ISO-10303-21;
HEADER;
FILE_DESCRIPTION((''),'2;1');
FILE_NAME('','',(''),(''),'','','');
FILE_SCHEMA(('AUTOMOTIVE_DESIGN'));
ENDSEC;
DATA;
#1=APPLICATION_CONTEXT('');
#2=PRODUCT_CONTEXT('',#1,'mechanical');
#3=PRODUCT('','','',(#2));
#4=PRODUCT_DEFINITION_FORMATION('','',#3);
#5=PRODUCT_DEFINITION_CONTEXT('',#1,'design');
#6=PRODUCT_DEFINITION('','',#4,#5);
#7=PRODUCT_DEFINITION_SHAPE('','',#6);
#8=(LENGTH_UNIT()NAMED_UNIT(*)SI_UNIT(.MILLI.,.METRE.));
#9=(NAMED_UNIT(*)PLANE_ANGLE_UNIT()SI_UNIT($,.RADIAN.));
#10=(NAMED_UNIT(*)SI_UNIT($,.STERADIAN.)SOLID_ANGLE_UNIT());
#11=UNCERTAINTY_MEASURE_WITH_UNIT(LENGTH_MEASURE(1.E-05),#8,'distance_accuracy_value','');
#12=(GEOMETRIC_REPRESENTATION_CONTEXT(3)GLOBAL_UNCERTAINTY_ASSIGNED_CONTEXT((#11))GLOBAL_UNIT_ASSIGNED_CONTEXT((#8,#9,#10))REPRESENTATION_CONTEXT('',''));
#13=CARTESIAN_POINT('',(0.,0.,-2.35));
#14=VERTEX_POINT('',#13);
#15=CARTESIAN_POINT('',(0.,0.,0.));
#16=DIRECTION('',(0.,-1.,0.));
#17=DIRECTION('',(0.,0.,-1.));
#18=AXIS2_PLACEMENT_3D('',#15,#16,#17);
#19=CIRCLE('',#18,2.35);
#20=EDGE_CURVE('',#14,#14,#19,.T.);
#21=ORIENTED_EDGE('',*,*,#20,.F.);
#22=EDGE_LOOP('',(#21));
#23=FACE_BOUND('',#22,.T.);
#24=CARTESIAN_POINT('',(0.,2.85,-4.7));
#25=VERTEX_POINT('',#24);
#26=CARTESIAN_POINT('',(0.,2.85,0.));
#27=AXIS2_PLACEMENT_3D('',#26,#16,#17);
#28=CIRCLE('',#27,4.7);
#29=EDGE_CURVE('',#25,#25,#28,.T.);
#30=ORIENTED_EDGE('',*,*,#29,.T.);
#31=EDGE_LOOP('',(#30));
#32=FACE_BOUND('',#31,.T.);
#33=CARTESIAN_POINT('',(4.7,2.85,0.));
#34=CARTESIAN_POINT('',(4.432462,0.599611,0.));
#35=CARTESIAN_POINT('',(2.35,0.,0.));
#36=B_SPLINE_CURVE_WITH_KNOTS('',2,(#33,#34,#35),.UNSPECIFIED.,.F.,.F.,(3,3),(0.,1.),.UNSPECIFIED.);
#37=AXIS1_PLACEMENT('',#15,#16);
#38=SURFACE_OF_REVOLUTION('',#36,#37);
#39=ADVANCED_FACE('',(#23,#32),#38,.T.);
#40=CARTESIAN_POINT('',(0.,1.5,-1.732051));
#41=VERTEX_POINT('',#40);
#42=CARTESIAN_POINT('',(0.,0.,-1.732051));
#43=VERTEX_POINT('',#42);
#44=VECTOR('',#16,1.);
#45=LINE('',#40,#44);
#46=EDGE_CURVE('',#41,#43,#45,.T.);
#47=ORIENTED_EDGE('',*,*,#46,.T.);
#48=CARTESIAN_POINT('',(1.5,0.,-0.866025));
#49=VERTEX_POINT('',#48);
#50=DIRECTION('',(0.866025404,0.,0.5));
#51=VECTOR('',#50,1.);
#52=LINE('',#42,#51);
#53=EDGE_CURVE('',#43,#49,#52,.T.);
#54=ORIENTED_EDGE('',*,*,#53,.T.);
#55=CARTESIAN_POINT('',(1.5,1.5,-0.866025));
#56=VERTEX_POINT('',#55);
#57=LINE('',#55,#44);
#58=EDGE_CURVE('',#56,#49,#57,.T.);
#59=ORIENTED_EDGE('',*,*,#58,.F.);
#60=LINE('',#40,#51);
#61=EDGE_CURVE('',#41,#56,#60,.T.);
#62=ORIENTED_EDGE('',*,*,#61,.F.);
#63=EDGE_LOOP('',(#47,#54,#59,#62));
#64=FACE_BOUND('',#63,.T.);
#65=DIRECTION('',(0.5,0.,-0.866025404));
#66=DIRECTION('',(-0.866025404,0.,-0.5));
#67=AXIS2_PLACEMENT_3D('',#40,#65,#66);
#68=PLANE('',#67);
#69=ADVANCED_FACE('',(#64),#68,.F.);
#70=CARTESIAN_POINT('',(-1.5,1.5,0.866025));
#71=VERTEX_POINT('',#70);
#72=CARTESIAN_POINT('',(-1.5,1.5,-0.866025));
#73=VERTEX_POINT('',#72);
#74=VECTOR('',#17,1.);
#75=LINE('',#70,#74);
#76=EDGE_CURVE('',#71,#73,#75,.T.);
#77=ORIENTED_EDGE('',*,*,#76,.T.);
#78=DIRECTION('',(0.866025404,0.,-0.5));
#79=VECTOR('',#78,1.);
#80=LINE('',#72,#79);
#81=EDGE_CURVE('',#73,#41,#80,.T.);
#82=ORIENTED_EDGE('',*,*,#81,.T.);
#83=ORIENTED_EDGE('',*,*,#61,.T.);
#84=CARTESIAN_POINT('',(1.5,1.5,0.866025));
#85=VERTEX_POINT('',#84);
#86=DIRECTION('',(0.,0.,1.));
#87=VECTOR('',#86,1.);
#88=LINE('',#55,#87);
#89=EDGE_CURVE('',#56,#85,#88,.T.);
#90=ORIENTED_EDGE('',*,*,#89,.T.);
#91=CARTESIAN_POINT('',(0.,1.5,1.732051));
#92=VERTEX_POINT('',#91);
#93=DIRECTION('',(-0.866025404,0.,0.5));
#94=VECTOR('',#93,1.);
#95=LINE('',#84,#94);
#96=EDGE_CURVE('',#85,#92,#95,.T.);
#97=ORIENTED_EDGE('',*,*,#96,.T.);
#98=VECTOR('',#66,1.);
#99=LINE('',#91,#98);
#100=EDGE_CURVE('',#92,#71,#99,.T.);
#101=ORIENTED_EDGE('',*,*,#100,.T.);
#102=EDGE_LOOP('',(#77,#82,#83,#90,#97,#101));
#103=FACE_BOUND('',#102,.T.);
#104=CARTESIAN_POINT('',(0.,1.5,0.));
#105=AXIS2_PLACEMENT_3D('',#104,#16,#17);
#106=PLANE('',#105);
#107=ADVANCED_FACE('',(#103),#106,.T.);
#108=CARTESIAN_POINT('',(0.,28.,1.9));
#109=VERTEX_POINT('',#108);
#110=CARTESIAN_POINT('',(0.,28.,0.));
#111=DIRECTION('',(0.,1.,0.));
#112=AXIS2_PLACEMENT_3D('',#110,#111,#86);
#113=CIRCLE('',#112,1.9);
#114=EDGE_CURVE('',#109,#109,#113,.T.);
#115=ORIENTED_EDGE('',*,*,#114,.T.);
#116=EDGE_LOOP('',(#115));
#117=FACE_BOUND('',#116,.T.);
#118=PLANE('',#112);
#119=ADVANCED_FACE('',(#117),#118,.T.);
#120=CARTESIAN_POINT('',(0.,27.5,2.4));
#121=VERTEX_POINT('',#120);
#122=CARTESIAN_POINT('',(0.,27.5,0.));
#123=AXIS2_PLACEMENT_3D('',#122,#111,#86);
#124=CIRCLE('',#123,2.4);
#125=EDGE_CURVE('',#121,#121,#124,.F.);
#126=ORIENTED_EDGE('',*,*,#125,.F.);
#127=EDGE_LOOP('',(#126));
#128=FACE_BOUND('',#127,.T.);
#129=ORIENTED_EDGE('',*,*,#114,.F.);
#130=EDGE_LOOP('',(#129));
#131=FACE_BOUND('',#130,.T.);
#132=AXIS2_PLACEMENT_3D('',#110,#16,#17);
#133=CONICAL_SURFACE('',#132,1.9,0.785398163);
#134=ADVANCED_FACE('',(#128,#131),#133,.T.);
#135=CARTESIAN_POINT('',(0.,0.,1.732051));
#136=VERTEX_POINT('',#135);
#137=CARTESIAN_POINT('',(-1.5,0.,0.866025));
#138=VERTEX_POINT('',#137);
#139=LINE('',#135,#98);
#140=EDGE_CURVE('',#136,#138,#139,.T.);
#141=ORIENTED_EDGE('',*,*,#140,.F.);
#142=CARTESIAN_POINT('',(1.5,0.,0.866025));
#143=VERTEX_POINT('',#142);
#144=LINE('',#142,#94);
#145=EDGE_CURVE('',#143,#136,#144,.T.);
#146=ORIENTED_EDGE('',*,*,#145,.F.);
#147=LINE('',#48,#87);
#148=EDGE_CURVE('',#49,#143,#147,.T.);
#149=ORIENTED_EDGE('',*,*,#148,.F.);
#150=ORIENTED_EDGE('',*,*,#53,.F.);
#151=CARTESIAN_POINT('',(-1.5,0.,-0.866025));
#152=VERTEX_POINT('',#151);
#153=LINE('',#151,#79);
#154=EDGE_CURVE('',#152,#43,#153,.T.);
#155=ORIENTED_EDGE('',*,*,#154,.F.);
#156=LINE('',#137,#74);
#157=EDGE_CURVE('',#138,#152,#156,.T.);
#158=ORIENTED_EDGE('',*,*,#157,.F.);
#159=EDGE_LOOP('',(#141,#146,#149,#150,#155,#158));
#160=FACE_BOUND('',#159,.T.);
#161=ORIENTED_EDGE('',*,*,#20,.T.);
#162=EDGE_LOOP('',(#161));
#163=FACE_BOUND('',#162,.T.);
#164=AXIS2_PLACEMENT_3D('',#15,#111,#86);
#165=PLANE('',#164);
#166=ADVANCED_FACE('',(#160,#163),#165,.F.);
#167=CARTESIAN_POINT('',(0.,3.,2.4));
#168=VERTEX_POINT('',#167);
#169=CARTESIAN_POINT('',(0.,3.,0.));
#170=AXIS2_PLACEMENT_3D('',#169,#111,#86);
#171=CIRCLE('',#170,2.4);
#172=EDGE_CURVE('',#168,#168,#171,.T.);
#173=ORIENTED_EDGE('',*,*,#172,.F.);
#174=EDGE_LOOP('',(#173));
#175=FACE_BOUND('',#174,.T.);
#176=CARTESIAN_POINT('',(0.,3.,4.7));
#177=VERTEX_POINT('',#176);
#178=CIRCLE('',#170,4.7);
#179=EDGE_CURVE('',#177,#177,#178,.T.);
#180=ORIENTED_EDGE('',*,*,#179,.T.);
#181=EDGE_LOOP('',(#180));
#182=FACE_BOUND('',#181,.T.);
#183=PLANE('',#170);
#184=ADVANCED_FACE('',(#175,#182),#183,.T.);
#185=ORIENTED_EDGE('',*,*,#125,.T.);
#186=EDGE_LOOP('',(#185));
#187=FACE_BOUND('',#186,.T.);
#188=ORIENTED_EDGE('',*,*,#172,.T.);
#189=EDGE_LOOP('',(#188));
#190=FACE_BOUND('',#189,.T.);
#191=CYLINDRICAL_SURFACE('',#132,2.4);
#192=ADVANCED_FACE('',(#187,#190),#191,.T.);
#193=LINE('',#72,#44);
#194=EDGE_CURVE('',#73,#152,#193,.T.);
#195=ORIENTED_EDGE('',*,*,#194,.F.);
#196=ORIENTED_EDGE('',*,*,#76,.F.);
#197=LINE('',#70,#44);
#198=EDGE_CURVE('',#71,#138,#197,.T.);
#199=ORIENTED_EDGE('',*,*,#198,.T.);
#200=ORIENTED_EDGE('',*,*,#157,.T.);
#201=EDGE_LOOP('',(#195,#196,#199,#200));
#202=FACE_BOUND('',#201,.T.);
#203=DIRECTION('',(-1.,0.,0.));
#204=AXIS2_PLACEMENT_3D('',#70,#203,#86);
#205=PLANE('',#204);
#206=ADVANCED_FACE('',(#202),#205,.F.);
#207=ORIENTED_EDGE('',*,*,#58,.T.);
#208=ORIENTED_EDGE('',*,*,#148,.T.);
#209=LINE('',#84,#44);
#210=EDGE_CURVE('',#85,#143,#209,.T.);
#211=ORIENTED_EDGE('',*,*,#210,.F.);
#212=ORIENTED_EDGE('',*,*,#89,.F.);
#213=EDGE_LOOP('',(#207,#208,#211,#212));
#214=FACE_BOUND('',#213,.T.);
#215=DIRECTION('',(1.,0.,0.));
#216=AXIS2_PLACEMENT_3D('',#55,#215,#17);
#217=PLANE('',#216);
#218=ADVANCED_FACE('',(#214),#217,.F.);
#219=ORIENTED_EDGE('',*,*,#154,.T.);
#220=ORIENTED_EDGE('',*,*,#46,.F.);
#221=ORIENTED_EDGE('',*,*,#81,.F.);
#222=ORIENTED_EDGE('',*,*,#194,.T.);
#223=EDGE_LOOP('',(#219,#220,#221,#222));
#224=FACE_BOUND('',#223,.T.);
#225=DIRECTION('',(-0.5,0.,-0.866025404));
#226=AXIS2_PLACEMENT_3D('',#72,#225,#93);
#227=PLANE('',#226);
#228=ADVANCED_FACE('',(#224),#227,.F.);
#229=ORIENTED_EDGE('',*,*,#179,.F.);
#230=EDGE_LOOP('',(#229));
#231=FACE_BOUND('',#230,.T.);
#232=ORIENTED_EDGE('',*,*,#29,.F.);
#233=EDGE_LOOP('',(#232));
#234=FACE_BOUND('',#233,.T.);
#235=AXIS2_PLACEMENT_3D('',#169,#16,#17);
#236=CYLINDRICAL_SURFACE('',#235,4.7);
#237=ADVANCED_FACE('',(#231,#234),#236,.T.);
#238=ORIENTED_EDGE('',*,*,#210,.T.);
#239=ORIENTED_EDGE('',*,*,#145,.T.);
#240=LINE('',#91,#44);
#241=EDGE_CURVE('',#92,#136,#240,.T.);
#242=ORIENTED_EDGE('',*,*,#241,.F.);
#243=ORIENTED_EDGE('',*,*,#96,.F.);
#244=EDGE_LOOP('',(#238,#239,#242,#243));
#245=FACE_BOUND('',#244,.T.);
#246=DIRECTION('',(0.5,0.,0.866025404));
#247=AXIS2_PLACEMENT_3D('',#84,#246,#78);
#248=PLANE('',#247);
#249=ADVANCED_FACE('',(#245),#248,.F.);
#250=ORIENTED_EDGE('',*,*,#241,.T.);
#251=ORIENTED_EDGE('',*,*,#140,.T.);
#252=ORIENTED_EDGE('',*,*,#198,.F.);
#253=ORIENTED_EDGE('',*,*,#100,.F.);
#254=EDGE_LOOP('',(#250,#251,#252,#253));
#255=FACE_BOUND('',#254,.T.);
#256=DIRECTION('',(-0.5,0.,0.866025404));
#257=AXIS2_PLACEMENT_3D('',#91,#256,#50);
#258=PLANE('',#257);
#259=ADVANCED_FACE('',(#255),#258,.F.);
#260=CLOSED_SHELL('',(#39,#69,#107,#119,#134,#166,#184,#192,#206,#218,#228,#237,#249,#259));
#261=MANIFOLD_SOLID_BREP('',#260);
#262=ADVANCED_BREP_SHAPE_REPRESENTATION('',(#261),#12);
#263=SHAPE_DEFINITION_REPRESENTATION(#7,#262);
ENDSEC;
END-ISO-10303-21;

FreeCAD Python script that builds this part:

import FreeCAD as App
import Part
import Sketcher
Q = App.Units.Quantity


def edges_at(feature, points):
    """Names of the edges that pass closest to the given points."""
    edges = feature.Shape.Edges
    near = lambda p: min(range(len(edges)), key=lambda i: edges[i].distToShape(Part.Vertex(*p))[0])
    return sorted({f"Edge{near(p) + 1}" for p in points})


def add_polygon(sketch, points):
    """Adds a closed chain of lines whose ends are joined by coincident constraints."""
    first, n = sketch.GeometryCount, len(points)
    for a, b in zip(points, points[1:] + points[:1]):
        sketch.addGeometry(Part.LineSegment(App.Vector(*a, 0), App.Vector(*b, 0)), False)
    for i in range(n):
        sketch.addConstraint(Sketcher.Constraint("Coincident", first + i, 2, first + (i + 1) % n, 1))

doc = App.newDocument("Part")
body = doc.addObject("PartDesign::Body", "Body")

# Sketch on XZ plane
sketch1 = body.newObject("Sketcher::SketchObject", "Sketch")
sketch1.AttachmentSupport = (doc.getObject("XZ_Plane"), [""])
sketch1.MapMode = "FlatFace"
sketch1.addGeometry(Part.Circle(App.Vector(0, 0, 0), App.Vector(0, 0, 1), 4.7), False)
sketch1.addConstraint(Sketcher.Constraint("Coincident", 0, 3, -1, 1))
sketch1.addConstraint(Sketcher.Constraint("Diameter", 0, Q("9.4 mm")))
pad1 = body.newObject("PartDesign::Pad", "Pad")
pad1.Profile = sketch1
pad1.Length = 3
pad1.Reversed = True

# Sketch on XZ plane
sketch2 = body.newObject("Sketcher::SketchObject", "Sketch001")
sketch2.AttachmentSupport = (doc.getObject("XZ_Plane"), [""])
sketch2.MapMode = "FlatFace"
sketch2.AttachmentOffset = App.Placement(App.Vector(0, 0, -3), App.Rotation())
sketch2.addGeometry(Part.Circle(App.Vector(0, 0, 0), App.Vector(0, 0, 1), 2.4), False)
sketch2.addConstraint(Sketcher.Constraint("Coincident", 0, 3, -1, 1))
sketch2.addConstraint(Sketcher.Constraint("Diameter", 0, Q("4.8 mm")))
pad2 = body.newObject("PartDesign::Pad", "Pad001")
pad2.Profile = sketch2
pad2.Length = 25
pad2.Reversed = True

# Sketch on XY plane
sketch3 = body.newObject("Sketcher::SketchObject", "Sketch002")
sketch3.AttachmentSupport = (doc.getObject("XY_Plane"), [""])
sketch3.MapMode = "FlatFace"
sketch3.addGeometry(Part.LineSegment(App.Vector(2.35, 0, 0), App.Vector(4.7, 0, 0)), False)
sketch3.addGeometry(Part.LineSegment(App.Vector(4.7, 0, 0), App.Vector(4.7, 2.85, 0)), False)
sketch3.addGeometry(Part.BSplineCurve([App.Vector(2.35, 0, 0), App.Vector(4.432462, 0.599611, 0), App.Vector(4.7, 2.85, 0)], [3, 3], [0, 1], False, 2, [1, 1, 1], False), False)
sketch3.addConstraint(Sketcher.Constraint("Block", 2))
sketch3.addConstraint(Sketcher.Constraint("Coincident", 0, 2, 1, 1))
sketch3.addConstraint(Sketcher.Constraint("Coincident", 1, 2, 2, 2))
sketch3.addConstraint(Sketcher.Constraint("Coincident", 2, 1, 0, 1))
sketch3.addConstraint(Sketcher.Constraint("Horizontal", 0))
sketch3.addConstraint(Sketcher.Constraint("Vertical", 1))
groove = body.newObject("PartDesign::Groove", "Groove")
groove.Profile = sketch3
groove.ReferenceAxis = (sketch3, ["V_Axis"])
groove.Angle = 360

# Sketch on XZ plane
sketch4 = body.newObject("Sketcher::SketchObject", "Sketch003")
sketch4.AttachmentSupport = (doc.getObject("XZ_Plane"), [""])
sketch4.MapMode = "FlatFace"
add_polygon(sketch4, [(0, 1.7), (-1.5, 0.9), (-1.5, -0.9), (0, -1.7), (1.5, -0.9), (1.5, 0.9)])  # lines 0-5
sketch4.addConstraint(Sketcher.Constraint("Vertical", 1))
sketch4.addConstraint(Sketcher.Constraint("Vertical", 4))
sketch4.addConstraint(Sketcher.Constraint("Symmetric", 0, 2, 3, 2, -1, 1))
sketch4.addConstraint(Sketcher.Constraint("Symmetric", 2, 2, 5, 2, -1, 1))
sketch4.addConstraint(Sketcher.Constraint("PointOnObject", 2, 2, -2))
sketch4.addConstraint(Sketcher.Constraint("Parallel", 2, 5))
sketch4.addConstraint(Sketcher.Constraint("Horizontal", 1, 2, 3, 2))
sketch4.addConstraint(Sketcher.Constraint("Angle", 0, Q("-150 deg")))
sketch4.addConstraint(Sketcher.Constraint("DistanceX", 1, 2, 3, 2, Q("3 mm")))
sketch4.addConstraint(Sketcher.Constraint("DistanceY", 1, 2, 1, 1, Q("1.732051 mm")))
pocket1 = body.newObject("PartDesign::Pocket", "Pocket")
pocket1.Profile = sketch4
pocket1.Length = 1.5
doc.recompute()

chamfer = body.newObject("PartDesign::Chamfer", "Chamfer")
chamfer.Base = (pocket1, edges_at(pocket1, [(-2.4, 28, 0)]))
chamfer.Size = 0.5

doc.recompute()
